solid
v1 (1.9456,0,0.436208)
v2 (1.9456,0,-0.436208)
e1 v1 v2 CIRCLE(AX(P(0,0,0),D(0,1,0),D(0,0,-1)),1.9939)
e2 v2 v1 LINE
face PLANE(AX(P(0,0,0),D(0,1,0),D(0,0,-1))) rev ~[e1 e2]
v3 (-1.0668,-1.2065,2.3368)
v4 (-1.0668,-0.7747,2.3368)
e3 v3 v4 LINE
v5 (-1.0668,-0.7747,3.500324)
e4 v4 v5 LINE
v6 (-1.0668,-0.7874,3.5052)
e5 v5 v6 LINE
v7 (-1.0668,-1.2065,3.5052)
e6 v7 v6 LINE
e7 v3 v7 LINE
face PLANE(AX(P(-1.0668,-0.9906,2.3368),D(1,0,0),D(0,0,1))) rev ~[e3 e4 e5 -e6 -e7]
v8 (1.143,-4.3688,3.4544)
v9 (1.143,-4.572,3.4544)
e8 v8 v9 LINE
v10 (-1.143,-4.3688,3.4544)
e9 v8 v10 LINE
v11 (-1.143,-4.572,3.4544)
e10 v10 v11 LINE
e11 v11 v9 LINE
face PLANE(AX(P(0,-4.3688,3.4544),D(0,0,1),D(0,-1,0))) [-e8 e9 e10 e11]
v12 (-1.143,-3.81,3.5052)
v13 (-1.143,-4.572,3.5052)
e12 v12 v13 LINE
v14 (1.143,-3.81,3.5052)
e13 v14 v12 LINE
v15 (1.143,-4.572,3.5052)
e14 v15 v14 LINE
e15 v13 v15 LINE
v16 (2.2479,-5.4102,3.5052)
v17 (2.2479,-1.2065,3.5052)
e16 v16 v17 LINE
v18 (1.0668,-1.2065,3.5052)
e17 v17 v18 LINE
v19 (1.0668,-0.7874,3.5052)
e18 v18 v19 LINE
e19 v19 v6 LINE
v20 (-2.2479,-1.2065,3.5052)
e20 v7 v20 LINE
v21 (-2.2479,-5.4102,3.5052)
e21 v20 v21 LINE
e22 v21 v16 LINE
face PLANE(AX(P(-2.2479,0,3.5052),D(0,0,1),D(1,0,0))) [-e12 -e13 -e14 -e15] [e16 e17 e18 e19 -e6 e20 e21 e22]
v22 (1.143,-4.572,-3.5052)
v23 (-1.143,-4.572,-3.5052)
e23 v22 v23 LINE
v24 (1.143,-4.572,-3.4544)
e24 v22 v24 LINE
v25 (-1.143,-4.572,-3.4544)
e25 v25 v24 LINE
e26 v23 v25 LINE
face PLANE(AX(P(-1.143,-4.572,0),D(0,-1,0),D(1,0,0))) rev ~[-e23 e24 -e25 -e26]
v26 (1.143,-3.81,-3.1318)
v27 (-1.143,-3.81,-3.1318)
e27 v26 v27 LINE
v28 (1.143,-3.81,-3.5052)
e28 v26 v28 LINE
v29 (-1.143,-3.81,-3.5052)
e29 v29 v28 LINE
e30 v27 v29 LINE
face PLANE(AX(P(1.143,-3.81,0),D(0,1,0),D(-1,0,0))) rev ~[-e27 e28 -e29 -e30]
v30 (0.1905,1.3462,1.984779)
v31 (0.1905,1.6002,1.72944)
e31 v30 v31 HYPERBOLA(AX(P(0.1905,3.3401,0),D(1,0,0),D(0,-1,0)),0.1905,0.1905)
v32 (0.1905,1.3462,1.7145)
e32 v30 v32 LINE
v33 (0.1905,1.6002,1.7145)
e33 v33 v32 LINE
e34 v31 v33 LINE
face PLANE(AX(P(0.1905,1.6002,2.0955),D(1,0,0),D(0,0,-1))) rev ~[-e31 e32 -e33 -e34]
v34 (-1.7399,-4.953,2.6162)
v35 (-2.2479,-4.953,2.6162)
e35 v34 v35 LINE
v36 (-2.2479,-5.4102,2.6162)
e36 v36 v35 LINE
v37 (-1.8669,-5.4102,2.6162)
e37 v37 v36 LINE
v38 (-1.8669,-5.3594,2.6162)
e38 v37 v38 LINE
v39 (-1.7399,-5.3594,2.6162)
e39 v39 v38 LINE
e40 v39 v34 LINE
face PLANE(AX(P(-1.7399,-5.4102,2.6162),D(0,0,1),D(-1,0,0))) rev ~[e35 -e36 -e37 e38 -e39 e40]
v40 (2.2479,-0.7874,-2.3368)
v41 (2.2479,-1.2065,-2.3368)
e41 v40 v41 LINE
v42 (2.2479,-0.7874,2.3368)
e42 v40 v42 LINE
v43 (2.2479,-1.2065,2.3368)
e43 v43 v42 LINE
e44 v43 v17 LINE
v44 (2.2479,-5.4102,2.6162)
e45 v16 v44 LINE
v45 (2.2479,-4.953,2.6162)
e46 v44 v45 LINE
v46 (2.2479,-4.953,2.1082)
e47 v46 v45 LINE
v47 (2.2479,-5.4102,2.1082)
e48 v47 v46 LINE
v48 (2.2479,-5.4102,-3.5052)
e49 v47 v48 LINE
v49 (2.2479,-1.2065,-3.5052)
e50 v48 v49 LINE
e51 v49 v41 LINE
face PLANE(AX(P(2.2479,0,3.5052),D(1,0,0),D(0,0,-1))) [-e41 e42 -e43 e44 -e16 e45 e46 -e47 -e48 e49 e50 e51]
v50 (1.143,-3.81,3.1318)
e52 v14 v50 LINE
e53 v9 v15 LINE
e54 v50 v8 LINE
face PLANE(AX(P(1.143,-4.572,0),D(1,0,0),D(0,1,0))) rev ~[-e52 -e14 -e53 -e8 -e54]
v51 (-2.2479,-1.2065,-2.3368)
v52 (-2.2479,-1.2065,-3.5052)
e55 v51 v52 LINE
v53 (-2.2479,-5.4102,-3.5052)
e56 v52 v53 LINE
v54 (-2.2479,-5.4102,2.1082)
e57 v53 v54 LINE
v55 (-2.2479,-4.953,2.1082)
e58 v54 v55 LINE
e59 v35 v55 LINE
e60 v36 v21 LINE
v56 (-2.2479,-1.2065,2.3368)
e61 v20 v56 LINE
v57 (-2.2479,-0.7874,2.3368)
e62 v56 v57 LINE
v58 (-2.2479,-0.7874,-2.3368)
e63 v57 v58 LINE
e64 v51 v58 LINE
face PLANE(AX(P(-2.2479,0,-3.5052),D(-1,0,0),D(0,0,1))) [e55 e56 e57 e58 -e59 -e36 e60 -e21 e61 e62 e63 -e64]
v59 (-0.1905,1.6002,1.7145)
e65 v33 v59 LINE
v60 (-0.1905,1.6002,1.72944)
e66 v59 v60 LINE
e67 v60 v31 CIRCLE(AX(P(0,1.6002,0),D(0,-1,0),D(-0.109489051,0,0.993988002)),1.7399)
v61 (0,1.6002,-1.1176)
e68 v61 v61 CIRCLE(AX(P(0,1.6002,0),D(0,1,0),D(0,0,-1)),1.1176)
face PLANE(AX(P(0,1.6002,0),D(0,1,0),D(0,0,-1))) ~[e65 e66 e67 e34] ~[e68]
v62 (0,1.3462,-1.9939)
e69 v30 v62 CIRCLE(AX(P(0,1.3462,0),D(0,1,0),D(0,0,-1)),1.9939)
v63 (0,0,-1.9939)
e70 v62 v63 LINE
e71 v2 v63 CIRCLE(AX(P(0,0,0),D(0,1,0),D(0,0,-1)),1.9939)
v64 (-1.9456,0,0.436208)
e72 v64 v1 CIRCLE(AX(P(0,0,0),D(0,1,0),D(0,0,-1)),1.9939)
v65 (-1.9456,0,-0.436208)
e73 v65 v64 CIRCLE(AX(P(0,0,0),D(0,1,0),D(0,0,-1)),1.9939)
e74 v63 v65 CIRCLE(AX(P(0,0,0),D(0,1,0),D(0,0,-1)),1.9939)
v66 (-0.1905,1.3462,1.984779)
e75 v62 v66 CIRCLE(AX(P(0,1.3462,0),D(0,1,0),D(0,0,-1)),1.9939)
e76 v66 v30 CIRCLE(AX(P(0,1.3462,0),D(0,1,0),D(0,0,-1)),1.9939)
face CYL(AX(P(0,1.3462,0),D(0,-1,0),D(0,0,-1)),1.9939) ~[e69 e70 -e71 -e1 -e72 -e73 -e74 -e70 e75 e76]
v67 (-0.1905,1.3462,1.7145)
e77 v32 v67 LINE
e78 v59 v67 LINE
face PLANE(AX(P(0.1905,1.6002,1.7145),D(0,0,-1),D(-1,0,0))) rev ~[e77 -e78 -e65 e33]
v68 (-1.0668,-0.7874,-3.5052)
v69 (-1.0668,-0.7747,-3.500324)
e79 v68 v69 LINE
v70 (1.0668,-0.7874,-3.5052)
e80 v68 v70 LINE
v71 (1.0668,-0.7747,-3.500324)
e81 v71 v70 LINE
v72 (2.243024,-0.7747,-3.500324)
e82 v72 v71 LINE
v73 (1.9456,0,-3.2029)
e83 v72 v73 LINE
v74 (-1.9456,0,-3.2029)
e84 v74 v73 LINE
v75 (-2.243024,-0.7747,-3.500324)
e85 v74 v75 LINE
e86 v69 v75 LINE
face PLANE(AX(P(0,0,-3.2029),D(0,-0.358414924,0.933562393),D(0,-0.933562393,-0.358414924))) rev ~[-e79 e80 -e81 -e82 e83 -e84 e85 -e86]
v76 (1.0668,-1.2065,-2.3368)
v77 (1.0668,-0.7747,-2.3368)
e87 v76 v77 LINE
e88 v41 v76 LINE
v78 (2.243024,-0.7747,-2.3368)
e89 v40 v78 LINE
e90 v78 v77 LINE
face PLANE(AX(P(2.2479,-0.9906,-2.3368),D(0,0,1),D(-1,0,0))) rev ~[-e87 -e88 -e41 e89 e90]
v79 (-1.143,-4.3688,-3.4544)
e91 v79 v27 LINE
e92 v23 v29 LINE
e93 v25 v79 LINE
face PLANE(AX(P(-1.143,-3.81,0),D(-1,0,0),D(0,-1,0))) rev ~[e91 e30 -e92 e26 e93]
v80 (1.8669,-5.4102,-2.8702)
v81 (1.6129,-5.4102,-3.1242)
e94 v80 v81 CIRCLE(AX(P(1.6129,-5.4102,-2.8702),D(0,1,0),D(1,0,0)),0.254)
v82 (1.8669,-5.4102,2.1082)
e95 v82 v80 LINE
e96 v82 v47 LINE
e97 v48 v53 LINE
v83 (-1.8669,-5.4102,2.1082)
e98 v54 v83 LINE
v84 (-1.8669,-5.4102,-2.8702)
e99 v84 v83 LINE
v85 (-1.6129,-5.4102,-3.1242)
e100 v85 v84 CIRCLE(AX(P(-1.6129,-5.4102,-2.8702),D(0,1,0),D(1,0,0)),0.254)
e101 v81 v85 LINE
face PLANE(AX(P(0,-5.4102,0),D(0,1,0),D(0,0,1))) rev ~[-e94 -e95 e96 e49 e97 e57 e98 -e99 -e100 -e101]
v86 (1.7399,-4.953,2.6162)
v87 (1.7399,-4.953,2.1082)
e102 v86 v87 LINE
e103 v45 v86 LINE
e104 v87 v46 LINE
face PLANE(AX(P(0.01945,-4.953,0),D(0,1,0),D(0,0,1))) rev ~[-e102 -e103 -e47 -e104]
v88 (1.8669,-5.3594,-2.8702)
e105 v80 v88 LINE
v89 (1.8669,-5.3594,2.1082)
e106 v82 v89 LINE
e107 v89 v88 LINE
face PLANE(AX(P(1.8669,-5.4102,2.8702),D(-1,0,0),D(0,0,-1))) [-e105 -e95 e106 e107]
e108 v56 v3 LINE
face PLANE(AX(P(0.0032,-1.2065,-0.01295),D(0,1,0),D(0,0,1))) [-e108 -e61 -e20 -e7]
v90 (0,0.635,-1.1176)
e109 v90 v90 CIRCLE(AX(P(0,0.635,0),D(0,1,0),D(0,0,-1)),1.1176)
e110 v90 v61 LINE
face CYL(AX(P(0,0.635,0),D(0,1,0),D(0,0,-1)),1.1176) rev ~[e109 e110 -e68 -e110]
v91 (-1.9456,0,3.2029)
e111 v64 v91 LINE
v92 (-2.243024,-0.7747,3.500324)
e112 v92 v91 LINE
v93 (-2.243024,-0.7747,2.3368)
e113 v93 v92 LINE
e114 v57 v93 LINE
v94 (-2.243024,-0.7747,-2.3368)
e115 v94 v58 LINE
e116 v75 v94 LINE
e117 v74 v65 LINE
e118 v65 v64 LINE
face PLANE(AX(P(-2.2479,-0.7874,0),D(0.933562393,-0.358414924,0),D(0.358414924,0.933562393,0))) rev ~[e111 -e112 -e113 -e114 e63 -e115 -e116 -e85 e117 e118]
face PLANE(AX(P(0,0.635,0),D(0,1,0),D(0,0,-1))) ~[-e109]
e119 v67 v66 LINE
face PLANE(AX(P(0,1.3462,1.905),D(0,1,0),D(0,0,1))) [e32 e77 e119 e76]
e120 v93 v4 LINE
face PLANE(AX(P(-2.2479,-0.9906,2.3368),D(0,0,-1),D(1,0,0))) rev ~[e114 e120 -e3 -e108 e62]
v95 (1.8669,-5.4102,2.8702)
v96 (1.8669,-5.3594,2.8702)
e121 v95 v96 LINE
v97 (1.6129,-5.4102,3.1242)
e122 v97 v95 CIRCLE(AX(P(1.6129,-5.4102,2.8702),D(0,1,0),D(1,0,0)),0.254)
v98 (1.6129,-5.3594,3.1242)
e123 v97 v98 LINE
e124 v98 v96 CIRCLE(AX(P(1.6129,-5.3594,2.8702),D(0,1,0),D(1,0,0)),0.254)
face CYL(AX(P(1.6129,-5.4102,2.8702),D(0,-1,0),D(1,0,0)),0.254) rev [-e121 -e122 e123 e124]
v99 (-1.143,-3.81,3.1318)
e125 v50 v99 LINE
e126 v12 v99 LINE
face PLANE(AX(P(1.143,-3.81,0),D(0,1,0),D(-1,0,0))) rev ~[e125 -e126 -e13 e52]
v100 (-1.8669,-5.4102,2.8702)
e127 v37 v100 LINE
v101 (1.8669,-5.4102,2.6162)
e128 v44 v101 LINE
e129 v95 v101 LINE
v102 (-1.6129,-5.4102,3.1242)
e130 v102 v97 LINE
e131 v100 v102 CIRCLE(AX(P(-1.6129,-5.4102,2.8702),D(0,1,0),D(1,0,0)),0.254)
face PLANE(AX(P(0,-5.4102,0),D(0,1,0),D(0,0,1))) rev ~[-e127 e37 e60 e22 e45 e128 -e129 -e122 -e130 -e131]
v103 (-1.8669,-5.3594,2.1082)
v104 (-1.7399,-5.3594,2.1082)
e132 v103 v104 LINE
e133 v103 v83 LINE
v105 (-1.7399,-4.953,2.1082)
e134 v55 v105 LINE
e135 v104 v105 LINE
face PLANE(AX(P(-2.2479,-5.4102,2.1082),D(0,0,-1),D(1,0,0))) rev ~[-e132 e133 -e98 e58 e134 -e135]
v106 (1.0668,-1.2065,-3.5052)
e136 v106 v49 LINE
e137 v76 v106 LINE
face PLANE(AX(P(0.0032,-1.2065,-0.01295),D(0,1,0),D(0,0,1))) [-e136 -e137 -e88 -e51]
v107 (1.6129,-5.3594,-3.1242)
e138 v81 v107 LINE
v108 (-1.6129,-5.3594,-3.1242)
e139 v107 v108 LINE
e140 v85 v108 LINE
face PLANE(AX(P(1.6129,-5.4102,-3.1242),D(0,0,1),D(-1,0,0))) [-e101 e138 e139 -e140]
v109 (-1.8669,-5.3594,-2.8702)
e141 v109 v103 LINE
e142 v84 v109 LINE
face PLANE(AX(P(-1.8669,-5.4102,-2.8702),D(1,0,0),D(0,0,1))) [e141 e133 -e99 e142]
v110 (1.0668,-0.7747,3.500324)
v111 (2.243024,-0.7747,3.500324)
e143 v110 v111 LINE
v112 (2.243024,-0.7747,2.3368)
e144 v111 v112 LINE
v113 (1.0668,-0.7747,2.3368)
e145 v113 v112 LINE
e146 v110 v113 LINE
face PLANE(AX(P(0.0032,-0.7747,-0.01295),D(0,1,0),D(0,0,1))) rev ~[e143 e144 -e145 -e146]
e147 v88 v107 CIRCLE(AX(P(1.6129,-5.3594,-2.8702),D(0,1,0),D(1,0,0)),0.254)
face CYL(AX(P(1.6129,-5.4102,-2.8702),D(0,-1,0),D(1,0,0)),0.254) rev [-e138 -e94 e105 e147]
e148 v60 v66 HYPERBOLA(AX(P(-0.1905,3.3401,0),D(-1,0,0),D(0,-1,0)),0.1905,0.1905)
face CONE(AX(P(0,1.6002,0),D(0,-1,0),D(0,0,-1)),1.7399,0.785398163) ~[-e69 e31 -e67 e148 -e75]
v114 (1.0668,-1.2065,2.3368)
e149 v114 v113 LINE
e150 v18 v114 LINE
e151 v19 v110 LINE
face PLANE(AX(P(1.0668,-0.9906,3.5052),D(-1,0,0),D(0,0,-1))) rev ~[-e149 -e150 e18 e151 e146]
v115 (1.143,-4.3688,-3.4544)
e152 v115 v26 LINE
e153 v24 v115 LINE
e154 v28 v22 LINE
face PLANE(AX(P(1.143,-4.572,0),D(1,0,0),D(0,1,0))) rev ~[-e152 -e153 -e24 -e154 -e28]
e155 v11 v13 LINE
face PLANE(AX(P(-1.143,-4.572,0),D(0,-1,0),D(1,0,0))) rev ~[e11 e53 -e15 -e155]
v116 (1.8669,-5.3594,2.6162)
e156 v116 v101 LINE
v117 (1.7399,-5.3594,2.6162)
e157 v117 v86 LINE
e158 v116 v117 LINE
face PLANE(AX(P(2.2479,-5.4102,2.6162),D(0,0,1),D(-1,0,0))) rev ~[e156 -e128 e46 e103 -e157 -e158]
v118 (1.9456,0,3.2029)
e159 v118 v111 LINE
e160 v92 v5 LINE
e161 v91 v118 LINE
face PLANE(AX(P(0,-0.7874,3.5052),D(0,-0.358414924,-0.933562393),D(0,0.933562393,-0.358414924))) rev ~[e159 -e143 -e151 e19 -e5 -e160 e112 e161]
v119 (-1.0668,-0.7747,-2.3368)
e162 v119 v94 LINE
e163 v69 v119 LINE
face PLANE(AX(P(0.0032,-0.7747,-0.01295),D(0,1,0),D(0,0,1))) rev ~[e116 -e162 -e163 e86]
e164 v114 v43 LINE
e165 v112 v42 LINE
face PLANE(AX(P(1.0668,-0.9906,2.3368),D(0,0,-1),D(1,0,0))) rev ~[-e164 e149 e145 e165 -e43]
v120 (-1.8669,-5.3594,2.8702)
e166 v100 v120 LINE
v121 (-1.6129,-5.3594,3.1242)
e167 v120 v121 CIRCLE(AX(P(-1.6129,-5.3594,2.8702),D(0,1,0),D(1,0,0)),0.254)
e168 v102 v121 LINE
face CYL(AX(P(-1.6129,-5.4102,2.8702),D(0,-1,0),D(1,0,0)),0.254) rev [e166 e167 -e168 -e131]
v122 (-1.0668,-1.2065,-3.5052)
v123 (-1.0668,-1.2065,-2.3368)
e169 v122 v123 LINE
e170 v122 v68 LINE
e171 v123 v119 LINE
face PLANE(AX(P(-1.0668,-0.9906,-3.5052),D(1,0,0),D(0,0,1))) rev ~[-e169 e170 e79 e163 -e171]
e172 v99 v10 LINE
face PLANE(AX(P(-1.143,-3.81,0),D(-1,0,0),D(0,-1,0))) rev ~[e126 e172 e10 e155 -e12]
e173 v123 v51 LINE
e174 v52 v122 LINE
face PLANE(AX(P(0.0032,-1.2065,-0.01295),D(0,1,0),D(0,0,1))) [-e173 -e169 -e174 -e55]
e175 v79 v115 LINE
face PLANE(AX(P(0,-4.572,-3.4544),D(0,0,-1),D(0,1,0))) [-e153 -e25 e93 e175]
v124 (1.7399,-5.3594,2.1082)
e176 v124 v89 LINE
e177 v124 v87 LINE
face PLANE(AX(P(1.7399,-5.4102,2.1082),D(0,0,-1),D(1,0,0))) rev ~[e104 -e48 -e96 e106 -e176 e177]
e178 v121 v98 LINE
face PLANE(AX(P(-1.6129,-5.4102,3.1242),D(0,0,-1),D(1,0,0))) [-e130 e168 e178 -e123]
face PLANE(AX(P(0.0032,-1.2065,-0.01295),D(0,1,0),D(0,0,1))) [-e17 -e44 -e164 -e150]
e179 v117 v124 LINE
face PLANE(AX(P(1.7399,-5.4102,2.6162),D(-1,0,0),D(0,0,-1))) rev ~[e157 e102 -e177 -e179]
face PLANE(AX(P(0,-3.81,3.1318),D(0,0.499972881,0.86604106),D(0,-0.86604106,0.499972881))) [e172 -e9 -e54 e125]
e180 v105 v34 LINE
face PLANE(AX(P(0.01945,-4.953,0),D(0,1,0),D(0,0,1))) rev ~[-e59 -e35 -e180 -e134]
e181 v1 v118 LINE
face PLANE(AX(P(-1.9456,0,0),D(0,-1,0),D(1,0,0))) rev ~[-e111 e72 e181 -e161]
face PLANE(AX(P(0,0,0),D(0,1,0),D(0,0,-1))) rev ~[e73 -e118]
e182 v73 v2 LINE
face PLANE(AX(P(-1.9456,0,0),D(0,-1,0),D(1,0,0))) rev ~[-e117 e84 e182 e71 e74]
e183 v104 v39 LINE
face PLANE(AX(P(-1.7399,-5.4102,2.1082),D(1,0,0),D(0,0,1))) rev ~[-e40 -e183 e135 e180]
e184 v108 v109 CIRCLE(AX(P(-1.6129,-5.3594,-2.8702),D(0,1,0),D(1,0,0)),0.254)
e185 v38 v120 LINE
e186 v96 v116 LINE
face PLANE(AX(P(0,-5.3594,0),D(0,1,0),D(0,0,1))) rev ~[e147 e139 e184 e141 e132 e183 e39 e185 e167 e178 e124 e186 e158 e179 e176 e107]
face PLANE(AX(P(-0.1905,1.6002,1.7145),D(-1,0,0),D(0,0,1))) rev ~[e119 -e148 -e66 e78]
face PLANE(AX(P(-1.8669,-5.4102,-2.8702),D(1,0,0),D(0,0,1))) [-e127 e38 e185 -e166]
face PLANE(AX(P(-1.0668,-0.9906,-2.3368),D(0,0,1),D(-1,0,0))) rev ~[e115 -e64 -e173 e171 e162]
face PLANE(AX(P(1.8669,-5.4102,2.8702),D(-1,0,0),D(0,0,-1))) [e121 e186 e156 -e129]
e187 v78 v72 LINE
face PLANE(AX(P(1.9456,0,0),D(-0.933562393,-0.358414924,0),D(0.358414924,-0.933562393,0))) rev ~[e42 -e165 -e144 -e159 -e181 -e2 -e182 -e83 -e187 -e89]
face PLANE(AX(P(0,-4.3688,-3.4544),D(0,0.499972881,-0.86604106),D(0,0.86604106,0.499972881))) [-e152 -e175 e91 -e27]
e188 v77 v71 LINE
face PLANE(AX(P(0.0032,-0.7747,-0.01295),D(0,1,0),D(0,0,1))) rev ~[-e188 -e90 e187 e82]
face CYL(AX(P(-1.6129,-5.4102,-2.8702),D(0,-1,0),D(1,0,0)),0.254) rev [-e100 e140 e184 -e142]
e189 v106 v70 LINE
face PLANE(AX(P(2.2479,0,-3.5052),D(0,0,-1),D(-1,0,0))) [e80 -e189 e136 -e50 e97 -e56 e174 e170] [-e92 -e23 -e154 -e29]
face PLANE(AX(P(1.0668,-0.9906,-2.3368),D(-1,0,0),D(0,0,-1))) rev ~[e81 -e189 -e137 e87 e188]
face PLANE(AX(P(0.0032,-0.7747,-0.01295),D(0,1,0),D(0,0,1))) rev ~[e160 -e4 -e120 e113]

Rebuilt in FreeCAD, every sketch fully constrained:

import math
import FreeCAD as App
import Part
import Sketcher
from FreeCAD import Vector
Q = App.Units.Quantity

doc = App.newDocument("Part")
params = doc.addObject("Spreadsheet::Sheet", "Params")
for row, (alias, value) in enumerate([
    ("sketch1_width", "0.177 in"),
    ("sketch1_height", "0.276 in"),
    ("pad1_length", "0.213 in"),
    ("sketch2_width", "0.177 in"),
    ("sketch2_height", "0.036 in"),
    ("sketch3_width", "0.036 in"),
    ("sketch3_height", "0.276 in"),
    ("sketch4_width", "0.084 in"),
    ("sketch4_height", "0.184 in"),
    ("sketch4_height2", "0.046 in"),
    ("pocket3_length", "0.0085 in"),
    ("pocket3_length2", "0.0085 in"),
    ("sketch5_width", "0.025 in"),
    ("sketch5_width2", "0.053 in"),
    ("sketch5_width3", "0.038 in"),
    ("sketch5_height", "0.044 in"),
    ("revolution_angle", "360 deg"),
    ("sketch6_width", "0.02 in"),
    ("sketch6_width2", "0.177 in"),
    ("sketch6_height", "0.035 in"),
    ("sketch6_height2", "0.221 in"),
    ("pocket4_length", "0.018 in"),
    ("sketch7_radius", "0.01 in"),
    ("sketch7_width", "0.127 in"),
    ("sketch7_height", "0.226 in"),
    ("pocket5_length", "0.002 in"),
    ("sketch8_width", "0.015 in"),
    ("pocket6_length", "0.01 in"),
    ("sketch9_width", "0.09 in"),
    ("sketch9_height", "0.03 in"),
    ("sketch10_width", "0.008 in"),
    ("sketch10_height", "0.272 in"),
    ("pad2_length", "0.045 in"),
    ("pad2_length2", "0.045 in"),
], start=1):
    params.set(f"A{row}", alias)
    params.set(f"B{row}", "=" + value)
    params.setAlias(f"B{row}", alias)

body = doc.addObject("PartDesign::Body", "Body")

sketch1 = body.newObject("Sketcher::SketchObject", "Sketch")
sketch1.AttachmentSupport = (doc.getObject("XZ_Plane"), [""])
sketch1.MapMode = "FlatFace"
sketch1.addGeometry([
    Part.LineSegment(Vector(2.2, 3.5, 0), Vector(-2.2, 3.5, 0)),
    Part.LineSegment(Vector(-2.2, 3.5, 0), Vector(-2.2, -3.5, 0)),
    Part.LineSegment(Vector(-2.2, -3.5, 0), Vector(2.2, -3.5, 0)),
    Part.LineSegment(Vector(2.2, -3.5, 0), Vector(2.2, 3.5, 0)),
], False)
sketch1.addConstraint([
    Sketcher.Constraint("Coincident", 0, 2, 1, 1),
    Sketcher.Constraint("Coincident", 1, 2, 2, 1),
    Sketcher.Constraint("Coincident", 2, 2, 3, 1),
    Sketcher.Constraint("Coincident", 3, 2, 0, 1),
    Sketcher.Constraint("Horizontal", 0),
    Sketcher.Constraint("Vertical", 1),
    Sketcher.Constraint("Horizontal", 2),
    Sketcher.Constraint("Vertical", 3),
    Sketcher.Constraint("Symmetric", 0, 2, 2, 2, -1, 1),
    Sketcher.Constraint("DistanceX", 0, 2, 0, 1, Q("0.177 in")),
    Sketcher.Constraint("DistanceY", 1, 2, 1, 1, Q("0.276 in")),
])
sketch1.setExpression("Constraints[9]", "Params.sketch1_width")
sketch1.setExpression("Constraints[10]", "Params.sketch1_height")
pad1 = body.newObject("PartDesign::Pad", "Pad")
pad1.Profile = sketch1
pad1.setExpression("Length", "Params.pad1_length")

sketch2 = body.newObject("Sketcher::SketchObject", "Sketch001")
sketch2.AttachmentSupport = (doc.getObject("XY_Plane"), [""])
sketch2.MapMode = "FlatFace"
sketch2.addGeometry([
    Part.LineSegment(Vector(-2.2, 0.1, 0), Vector(-2.2, -0.8, 0)),
    Part.LineSegment(Vector(-2.2, -0.8, 0), Vector(-1.9, 0, 0)),
    Part.LineSegment(Vector(-1.9, 0, 0), Vector(1.9, 0, 0)),
    Part.LineSegment(Vector(1.9, 0, 0), Vector(2.2, -0.8, 0)),
    Part.LineSegment(Vector(2.2, -0.8, 0), Vector(2.2, 0.1, 0)),
    Part.LineSegment(Vector(2.2, 0.1, 0), Vector(-2.2, 0.1, 0)),
], False)
sketch2.addConstraint([
    Sketcher.Constraint("Coincident", 0, 2, 1, 1),
    Sketcher.Constraint("Coincident", 1, 2, 2, 1),
    Sketcher.Constraint("Coincident", 2, 2, 3, 1),
    Sketcher.Constraint("Coincident", 3, 2, 4, 1),
    Sketcher.Constraint("Coincident", 4, 2, 5, 1),
    Sketcher.Constraint("Coincident", 5, 2, 0, 1),
    Sketcher.Constraint("Vertical", 0),
    Sketcher.Constraint("Horizontal", 2),
    Sketcher.Constraint("Vertical", 4),
    Sketcher.Constraint("Horizontal", 5),
    Sketcher.Constraint("Symmetric", 1, 2, 2, 2, -1, 1),
    Sketcher.Constraint("Symmetric", 0, 2, 3, 2, -2),
    Sketcher.Constraint("DistanceX", 5, 2, 5, 1, Q("0.177 in")),
    Sketcher.Constraint("DistanceY", 0, 2, 0, 1, Q("0.036 in")),
    Sketcher.Constraint("DistanceX", 2, 1, 2, 2, Q("0.1532 in")),
    Sketcher.Constraint("DistanceY", 0, 2, -1, 1, Q("0.031 in")),
])
sketch2.setExpression("Constraints[12]", "Params.sketch2_width")
sketch2.setExpression("Constraints[13]", "Params.sketch2_height")
pocket1 = body.newObject("PartDesign::Pocket", "Pocket")
pocket1.Profile = sketch2
pocket1.Type = "ThroughAll"
pocket1.Midplane = True

sketch3 = body.newObject("Sketcher::SketchObject", "Sketch002")
sketch3.AttachmentSupport = (doc.getObject("YZ_Plane"), [""])
sketch3.MapMode = "FlatFace"
sketch3.addGeometry([
    Part.LineSegment(Vector(0.1, 3.5, 0), Vector(-0.8, 3.5, 0)),
    Part.LineSegment(Vector(-0.8, 3.5, 0), Vector(0, 3.2, 0)),
    Part.LineSegment(Vector(0, 3.2, 0), Vector(0, -3.2, 0)),
    Part.LineSegment(Vector(0, -3.2, 0), Vector(-0.8, -3.5, 0)),
    Part.LineSegment(Vector(-0.8, -3.5, 0), Vector(0.1, -3.5, 0)),
    Part.LineSegment(Vector(0.1, -3.5, 0), Vector(0.1, 3.5, 0)),
], False)
sketch3.addConstraint([
    Sketcher.Constraint("Coincident", 0, 2, 1, 1),
    Sketcher.Constraint("Coincident", 1, 2, 2, 1),
    Sketcher.Constraint("Coincident", 2, 2, 3, 1),
    Sketcher.Constraint("Coincident", 3, 2, 4, 1),
    Sketcher.Constraint("Coincident", 4, 2, 5, 1),
    Sketcher.Constraint("Coincident", 5, 2, 0, 1),
    Sketcher.Constraint("Horizontal", 0),
    Sketcher.Constraint("Vertical", 2),
    Sketcher.Constraint("Horizontal", 4),
    Sketcher.Constraint("Vertical", 5),
    Sketcher.Constraint("Symmetric", 1, 2, 2, 2, -1, 1),
    Sketcher.Constraint("Symmetric", 0, 2, 3, 2, -1),
    Sketcher.Constraint("DistanceX", 0, 2, 0, 1, Q("0.036 in")),
    Sketcher.Constraint("DistanceY", 5, 1, 5, 2, Q("0.276 in")),
    Sketcher.Constraint("DistanceY", 2, 2, 2, 1, Q("0.2522 in")),
    Sketcher.Constraint("DistanceX", 0, 2, -1, 1, Q("0.031 in")),
])
sketch3.setExpression("Constraints[12]", "Params.sketch3_width")
sketch3.setExpression("Constraints[13]", "Params.sketch3_height")
pocket2 = body.newObject("PartDesign::Pocket", "Pocket001")
pocket2.Profile = sketch3
pocket2.Type = "ThroughAll"
pocket2.Midplane = True

sketch4 = body.newObject("Sketcher::SketchObject", "Sketch003")
sketch4.AttachmentSupport = (doc.getObject("XZ_Plane"), [""])
sketch4.MapMode = "FlatFace"
sketch4.AttachmentOffset = App.Placement(Vector(0, 0, 0.039 * 25.4), App.Rotation())
sketch4.addGeometry([
    Part.LineSegment(Vector(-2.5, 3.7, 0), Vector(-2.5, -3.8, 0)),
    Part.LineSegment(Vector(-2.5, -3.8, 0), Vector(2.5, -3.8, 0)),
    Part.LineSegment(Vector(2.5, -3.8, 0), Vector(2.5, 3.7, 0)),
    Part.LineSegment(Vector(2.5, 3.7, 0), Vector(-2.5, 3.7, 0)),
    Part.LineSegment(Vector(-1.1, -2.3, 0), Vector(-2.2, -2.3, 0)),
    Part.LineSegment(Vector(-2.2, -2.3, 0), Vector(-2.2, 2.3, 0)),
    Part.LineSegment(Vector(-2.2, 2.3, 0), Vector(-1.1, 2.3, 0)),
    Part.LineSegment(Vector(-1.1, 2.3, 0), Vector(-1.1, 3.5, 0)),
    Part.LineSegment(Vector(-1.1, 3.5, 0), Vector(1.1, 3.5, 0)),
    Part.LineSegment(Vector(1.1, 3.5, 0), Vector(1.1, 2.3, 0)),
    Part.LineSegment(Vector(1.1, 2.3, 0), Vector(2.2, 2.3, 0)),
    Part.LineSegment(Vector(2.2, 2.3, 0), Vector(2.2, -2.3, 0)),
    Part.LineSegment(Vector(2.2, -2.3, 0), Vector(1.1, -2.3, 0)),
    Part.LineSegment(Vector(1.1, -2.3, 0), Vector(1.1, -3.5, 0)),
    Part.LineSegment(Vector(1.1, -3.5, 0), Vector(-1.1, -3.5, 0)),
    Part.LineSegment(Vector(-1.1, -3.5, 0), Vector(-1.1, -2.3, 0)),
], False)
sketch4.addConstraint([
    Sketcher.Constraint("Coincident", 0, 2, 1, 1),
    Sketcher.Constraint("Coincident", 1, 2, 2, 1),
    Sketcher.Constraint("Coincident", 2, 2, 3, 1),
    Sketcher.Constraint("Coincident", 3, 2, 0, 1),
    Sketcher.Constraint("Coincident", 4, 2, 5, 1),
    Sketcher.Constraint("Coincident", 5, 2, 6, 1),
    Sketcher.Constraint("Coincident", 6, 2, 7, 1),
    Sketcher.Constraint("Coincident", 7, 2, 8, 1),
    Sketcher.Constraint("Coincident", 8, 2, 9, 1),
    Sketcher.Constraint("Coincident", 9, 2, 10, 1),
    Sketcher.Constraint("Coincident", 10, 2, 11, 1),
    Sketcher.Constraint("Coincident", 11, 2, 12, 1),
    Sketcher.Constraint("Coincident", 12, 2, 13, 1),
    Sketcher.Constraint("Coincident", 13, 2, 14, 1),
    Sketcher.Constraint("Coincident", 14, 2, 15, 1),
    Sketcher.Constraint("Coincident", 15, 2, 4, 1),
    Sketcher.Constraint("Vertical", 0),
    Sketcher.Constraint("Horizontal", 1),
    Sketcher.Constraint("Vertical", 2),
    Sketcher.Constraint("Horizontal", 3),
    Sketcher.Constraint("Horizontal", 4),
    Sketcher.Constraint("Vertical", 5),
    Sketcher.Constraint("Horizontal", 6),
    Sketcher.Constraint("Vertical", 7),
    Sketcher.Constraint("Horizontal", 8),
    Sketcher.Constraint("Vertical", 9),
    Sketcher.Constraint("Horizontal", 10),
    Sketcher.Constraint("Vertical", 11),
    Sketcher.Constraint("Horizontal", 12),
    Sketcher.Constraint("Vertical", 13),
    Sketcher.Constraint("Horizontal", 14),
    Sketcher.Constraint("Vertical", 15),
    Sketcher.Constraint("Symmetric", 4, 2, 10, 2, -1, 1),
    Sketcher.Constraint("Symmetric", 6, 2, 12, 2, -1, 1),
    Sketcher.Constraint("Symmetric", 8, 2, 14, 2, -1, 1),
    Sketcher.Constraint("Symmetric", 6, 2, 9, 2, -2),
    Sketcher.Constraint("DistanceX", 8, 1, 8, 2, Q("0.084 in")),
    Sketcher.Constraint("DistanceY", 5, 1, 5, 2, Q("0.184 in")),
    Sketcher.Constraint("DistanceY", 7, 1, 7, 2, Q("0.046 in")),
    Sketcher.Constraint("DistanceX", 4, 2, 4, 1, Q("0.0465 in")),
    Sketcher.Constraint("DistanceY", 0, 2, 0, 1, Q("0.2947 in")),
    Sketcher.Constraint("DistanceX", 1, 1, 1, 2, Q("5.0576 mm")),
    Sketcher.Constraint("DistanceX", 0, 2, -1, 1, Q("2.5256 mm")),
    Sketcher.Constraint("DistanceY", 0, 2, -1, 1, Q("3.7556 mm")),
])
sketch4.setExpression("Constraints[36]", "Params.sketch4_width")
sketch4.setExpression("Constraints[37]", "Params.sketch4_height")
sketch4.setExpression("Constraints[38]", "Params.sketch4_height2")
pocket3 = body.newObject("PartDesign::Pocket", "Pocket002")
pocket3.Profile = sketch4
pocket3.Type = "TwoLengths"
pocket3.setExpression("Length", "Params.pocket3_length")
pocket3.setExpression("Length2", "Params.pocket3_length2")

sketch5 = body.newObject("Sketcher::SketchObject", "Sketch004")
sketch5.AttachmentSupport = (doc.getObject("YZ_Plane"), [""])
sketch5.MapMode = "FlatFace"
sketch5.addGeometry([
    Part.LineSegment(Vector(0.64, -1.12, 0), Vector(0.64, 0, 0)),
    Part.LineSegment(Vector(0.64, 0, 0), Vector(0, 0, 0)),
    Part.LineSegment(Vector(0, 0, 0), Vector(0, -1.99, 0)),
    Part.LineSegment(Vector(0, -1.99, 0), Vector(1.35, -1.99, 0)),
    Part.LineSegment(Vector(1.35, -1.99, 0), Vector(1.6, -1.74, 0)),
    Part.LineSegment(Vector(1.6, -1.74, 0), Vector(1.6, -1.12, 0)),
    Part.LineSegment(Vector(1.6, -1.12, 0), Vector(0.64, -1.12, 0)),
], False)
sketch5.addConstraint([
    Sketcher.Constraint("Coincident", 0, 2, 1, 1),
    Sketcher.Constraint("Coincident", 1, 2, 2, 1),
    Sketcher.Constraint("Coincident", 2, 2, 3, 1),
    Sketcher.Constraint("Coincident", 3, 2, 4, 1),
    Sketcher.Constraint("Coincident", 4, 2, 5, 1),
    Sketcher.Constraint("Coincident", 5, 2, 6, 1),
    Sketcher.Constraint("Coincident", 6, 2, 0, 1),
    Sketcher.Constraint("Vertical", 0),
    Sketcher.Constraint("Horizontal", 1),
    Sketcher.Constraint("Vertical", 2),
    Sketcher.Constraint("Horizontal", 3),
    Sketcher.Constraint("Vertical", 5),
    Sketcher.Constraint("Horizontal", 6),
    Sketcher.Constraint("Coincident", 1, 2, -1, 1),
    Sketcher.Constraint("Angle", 4, Q("45 deg")),
    Sketcher.Constraint("DistanceX", 1, 2, 1, 1, Q("0.025 in")),
    Sketcher.Constraint("DistanceX", 3, 1, 3, 2, Q("0.053 in")),
    Sketcher.Constraint("DistanceX", 6, 2, 6, 1, Q("0.038 in")),
    Sketcher.Constraint("DistanceY", 0, 1, 0, 2, Q("0.044 in")),
    Sketcher.Constraint("DistanceY", 2, 2, 2, 1, Q("0.0785 in")),
])
sketch5.setExpression("Constraints[15]", "Params.sketch5_width")
sketch5.setExpression("Constraints[16]", "Params.sketch5_width2")
sketch5.setExpression("Constraints[17]", "Params.sketch5_width3")
sketch5.setExpression("Constraints[18]", "Params.sketch5_height")
revolution = body.newObject("PartDesign::Revolution", "Revolution")
revolution.Profile = sketch5
revolution.ReferenceAxis = (sketch5, ["H_Axis"])
revolution.setExpression("Angle", "Params.revolution_angle")

sketch6 = body.newObject("Sketcher::SketchObject", "Sketch005")
sketch6.AttachmentSupport = (doc.getObject("XZ_Plane"), [""])
sketch6.MapMode = "FlatFace"
sketch6.AttachmentOffset = App.Placement(Vector(0, 0, 0.213 * 25.4), App.Rotation())
sketch6.addGeometry([
    Part.LineSegment(Vector(-2.6, 3.6, 0), Vector(-2.6, -3.6, 0)),
    Part.LineSegment(Vector(-2.6, -3.6, 0), Vector(2.7, -3.6, 0)),
    Part.LineSegment(Vector(2.7, -3.6, 0), Vector(2.7, 3.6, 0)),
    Part.LineSegment(Vector(2.7, 3.6, 0), Vector(-2.6, 3.6, 0)),
    Part.LineSegment(Vector(-2.2, 2.6, 0), Vector(-2.2, 3.5, 0)),
    Part.LineSegment(Vector(-2.2, 3.5, 0), Vector(2.2, 3.5, 0)),
    Part.LineSegment(Vector(2.2, 3.5, 0), Vector(2.2, 2.6, 0)),
    Part.LineSegment(Vector(2.2, 2.6, 0), Vector(1.7, 2.6, 0)),
    Part.LineSegment(Vector(1.7, 2.6, 0), Vector(1.7, 2.1, 0)),
    Part.LineSegment(Vector(1.7, 2.1, 0), Vector(2.2, 2.1, 0)),
    Part.LineSegment(Vector(2.2, 2.1, 0), Vector(2.2, -3.5, 0)),
    Part.LineSegment(Vector(2.2, -3.5, 0), Vector(-2.2, -3.5, 0)),
    Part.LineSegment(Vector(-2.2, -3.5, 0), Vector(-2.2, 2.1, 0)),
    Part.LineSegment(Vector(-2.2, 2.1, 0), Vector(-1.7, 2.1, 0)),
    Part.LineSegment(Vector(-1.7, 2.1, 0), Vector(-1.7, 2.6, 0)),
    Part.LineSegment(Vector(-1.7, 2.6, 0), Vector(-2.2, 2.6, 0)),
], False)
sketch6.addConstraint([
    Sketcher.Constraint("Coincident", 0, 2, 1, 1),
    Sketcher.Constraint("Coincident", 1, 2, 2, 1),
    Sketcher.Constraint("Coincident", 2, 2, 3, 1),
    Sketcher.Constraint("Coincident", 3, 2, 0, 1),
    Sketcher.Constraint("Coincident", 4, 2, 5, 1),
    Sketcher.Constraint("Coincident", 5, 2, 6, 1),
    Sketcher.Constraint("Coincident", 6, 2, 7, 1),
    Sketcher.Constraint("Coincident", 7, 2, 8, 1),
    Sketcher.Constraint("Coincident", 8, 2, 9, 1),
    Sketcher.Constraint("Coincident", 9, 2, 10, 1),
    Sketcher.Constraint("Coincident", 10, 2, 11, 1),
    Sketcher.Constraint("Coincident", 11, 2, 12, 1),
    Sketcher.Constraint("Coincident", 12, 2, 13, 1),
    Sketcher.Constraint("Coincident", 13, 2, 14, 1),
    Sketcher.Constraint("Coincident", 14, 2, 15, 1),
    Sketcher.Constraint("Coincident", 15, 2, 4, 1),
    Sketcher.Constraint("Vertical", 0),
    Sketcher.Constraint("Horizontal", 1),
    Sketcher.Constraint("Vertical", 2),
    Sketcher.Constraint("Horizontal", 3),
    Sketcher.Constraint("Vertical", 4),
    Sketcher.Constraint("Horizontal", 5),
    Sketcher.Constraint("Vertical", 6),
    Sketcher.Constraint("Horizontal", 7),
    Sketcher.Constraint("Vertical", 8),
    Sketcher.Constraint("Horizontal", 9),
    Sketcher.Constraint("Vertical", 10),
    Sketcher.Constraint("Horizontal", 11),
    Sketcher.Constraint("Vertical", 12),
    Sketcher.Constraint("Horizontal", 13),
    Sketcher.Constraint("Vertical", 14),
    Sketcher.Constraint("Horizontal", 15),
    Sketcher.Constraint("Symmetric", 4, 2, 10, 2, -1, 1),
    Sketcher.Constraint("Symmetric", 9, 2, 12, 2, -2),
    Sketcher.Constraint("Symmetric", 7, 2, 14, 2, -2),
    Sketcher.Constraint("Vertical", 6, 2, 9, 2),
    Sketcher.Constraint("Equal", 15, 8),
    Sketcher.Constraint("DistanceX", 7, 2, 7, 1, Q("0.02 in")),
    Sketcher.Constraint("DistanceX", 5, 1, 5, 2, Q("0.177 in")),
    Sketcher.Constraint("DistanceY", 4, 1, 4, 2, Q("0.035 in")),
    Sketcher.Constraint("DistanceY", 10, 2, 10, 1, Q("0.221 in")),
    Sketcher.Constraint("DistanceY", 0, 2, 0, 1, Q("0.2857 in")),
    Sketcher.Constraint("DistanceX", 1, 1, 1, 2, Q("5.3097 mm")),
    Sketcher.Constraint("DistanceX", 0, 2, -1, 1, Q("2.6354 mm")),
    Sketcher.Constraint("DistanceY", 0, 2, -1, 1, Q("3.6285 mm")),
])
sketch6.setExpression("Constraints[37]", "Params.sketch6_width")
sketch6.setExpression("Constraints[38]", "Params.sketch6_width2")
sketch6.setExpression("Constraints[39]", "Params.sketch6_height")
sketch6.setExpression("Constraints[40]", "Params.sketch6_height2")
pocket4 = body.newObject("PartDesign::Pocket", "Pocket003")
pocket4.Profile = sketch6
pocket4.setExpression("Length", "Params.pocket4_length")

sketch7 = body.newObject("Sketcher::SketchObject", "Sketch006")
sketch7.AttachmentSupport = (doc.getObject("XZ_Plane"), [""])
sketch7.MapMode = "FlatFace"
sketch7.AttachmentOffset = App.Placement(Vector(0, 0, 0.213 * 25.4), App.Rotation())
sketch7.addGeometry([
    Part.LineSegment(Vector(-1.87, 2.87, 0), Vector(-1.87, -2.87, 0)),
    Part.ArcOfCircle(Part.Circle(Vector(-1.61, -2.87, 0), Vector(0, 0, 1), 0.25), math.radians(180), math.radians(270)),
    Part.LineSegment(Vector(-1.61, -3.12, 0), Vector(1.61, -3.12, 0)),
    Part.ArcOfCircle(Part.Circle(Vector(1.61, -2.87, 0), Vector(0, 0, 1), 0.25), math.radians(-90), math.radians(0)),
    Part.LineSegment(Vector(1.87, -2.87, 0), Vector(1.87, 2.87, 0)),
    Part.ArcOfCircle(Part.Circle(Vector(1.61, 2.87, 0), Vector(0, 0, 1), 0.25), math.radians(0), math.radians(90)),
    Part.LineSegment(Vector(1.61, 3.12, 0), Vector(-1.61, 3.12, 0)),
    Part.ArcOfCircle(Part.Circle(Vector(-1.61, 2.87, 0), Vector(0, 0, 1), 0.25), math.radians(90), math.radians(180)),
], False)
sketch7.addConstraint([
    Sketcher.Constraint("Tangent", 0, 2, 1, 1),
    Sketcher.Constraint("Tangent", 1, 2, 2, 1),
    Sketcher.Constraint("Tangent", 2, 2, 3, 1),
    Sketcher.Constraint("Tangent", 3, 2, 4, 1),
    Sketcher.Constraint("Tangent", 4, 2, 5, 1),
    Sketcher.Constraint("Tangent", 5, 2, 6, 1),
    Sketcher.Constraint("Tangent", 6, 2, 7, 1),
    Sketcher.Constraint("Tangent", 7, 2, 0, 1),
    Sketcher.Constraint("Vertical", 0),
    Sketcher.Constraint("Horizontal", 2),
    Sketcher.Constraint("Vertical", 4),
    Sketcher.Constraint("Horizontal", 6),
    Sketcher.Constraint("Equal", 1, 3),
    Sketcher.Constraint("Equal", 3, 5),
    Sketcher.Constraint("Equal", 5, 7),
    Sketcher.Constraint("Symmetric", 1, 3, 5, 3, -1, 1),
    Sketcher.Constraint("Radius", 1, Q("0.01 in")),
    Sketcher.Constraint("DistanceX", 2, 1, 2, 2, Q("0.127 in")),
    Sketcher.Constraint("DistanceY", 0, 2, 0, 1, Q("0.226 in")),
])
sketch7.setExpression("Constraints[16]", "Params.sketch7_radius")
sketch7.setExpression("Constraints[17]", "Params.sketch7_width")
sketch7.setExpression("Constraints[18]", "Params.sketch7_height")
pocket5 = body.newObject("PartDesign::Pocket", "Pocket004")
pocket5.Profile = sketch7
pocket5.setExpression("Length", "Params.pocket5_length")

sketch8 = body.newObject("Sketcher::SketchObject", "Sketch007")
sketch8.AttachmentSupport = (doc.getObject("XZ_Plane"), [""])
sketch8.MapMode = "FlatFace"
sketch8.AttachmentOffset = App.Placement(Vector(0, 0, -0.063 * 25.4), App.Rotation())
sketch8.addGeometry([
    Part.LineSegment(Vector(-0.19, 2.1, 0), Vector(-0.19, 1.71, 0)),
    Part.LineSegment(Vector(-0.19, 1.71, 0), Vector(0.19, 1.71, 0)),
    Part.LineSegment(Vector(0.19, 1.71, 0), Vector(0.19, 2.1, 0)),
    Part.LineSegment(Vector(0.19, 2.1, 0), Vector(-0.19, 2.1, 0)),
], False)
sketch8.addConstraint([
    Sketcher.Constraint("Coincident", 0, 2, 1, 1),
    Sketcher.Constraint("Coincident", 1, 2, 2, 1),
    Sketcher.Constraint("Coincident", 2, 2, 3, 1),
    Sketcher.Constraint("Coincident", 3, 2, 0, 1),
    Sketcher.Constraint("Vertical", 0),
    Sketcher.Constraint("Horizontal", 1),
    Sketcher.Constraint("Vertical", 2),
    Sketcher.Constraint("Horizontal", 3),
    Sketcher.Constraint("Equal", 3, 0),
    Sketcher.Constraint("DistanceX", 1, 1, 1, 2, Q("0.015 in")),
    Sketcher.Constraint("DistanceX", 0, 2, -1, 1, Q("0.0075 in")),
    Sketcher.Constraint("DistanceY", -1, 1, 0, 2, Q("0.0675 in")),
])
sketch8.setExpression("Constraints[9]", "Params.sketch8_width")
pocket6 = body.newObject("PartDesign::Pocket", "Pocket005")
pocket6.Profile = sketch8
pocket6.setExpression("Length", "Params.pocket6_length")
pocket6.Reversed = True

sketch9 = body.newObject("Sketcher::SketchObject", "Sketch008")
sketch9.AttachmentSupport = (doc.getObject("XY_Plane"), [""])
sketch9.MapMode = "FlatFace"
sketch9.addGeometry([
    Part.LineSegment(Vector(1.1, -3.8, 0), Vector(-1.1, -3.8, 0)),
    Part.LineSegment(Vector(-1.1, -3.8, 0), Vector(-1.1, -4.6, 0)),
    Part.LineSegment(Vector(-1.1, -4.6, 0), Vector(1.1, -4.6, 0)),
    Part.LineSegment(Vector(1.1, -4.6, 0), Vector(1.1, -3.8, 0)),
], False)
sketch9.addConstraint([
    Sketcher.Constraint("Coincident", 0, 2, 1, 1),
    Sketcher.Constraint("Coincident", 1, 2, 2, 1),
    Sketcher.Constraint("Coincident", 2, 2, 3, 1),
    Sketcher.Constraint("Coincident", 3, 2, 0, 1),
    Sketcher.Constraint("Horizontal", 0),
    Sketcher.Constraint("Vertical", 1),
    Sketcher.Constraint("Horizontal", 2),
    Sketcher.Constraint("Vertical", 3),
    Sketcher.Constraint("DistanceX", 0, 2, 0, 1, Q("0.09 in")),
    Sketcher.Constraint("DistanceY", 1, 2, 1, 1, Q("0.03 in")),
    Sketcher.Constraint("DistanceY", 0, 2, -1, 1, Q("0.15 in")),
    Sketcher.Constraint("DistanceX", 0, 2, -1, 1, Q("0.045 in")),
])
sketch9.setExpression("Constraints[8]", "Params.sketch9_width")
sketch9.setExpression("Constraints[9]", "Params.sketch9_height")
pocket7 = body.newObject("PartDesign::Pocket", "Pocket006")
pocket7.Profile = sketch9
pocket7.Type = "ThroughAll"
pocket7.Midplane = True

sketch10 = body.newObject("Sketcher::SketchObject", "Sketch009")
sketch10.AttachmentSupport = (doc.getObject("YZ_Plane"), [""])
sketch10.MapMode = "FlatFace"
sketch10.addGeometry([
    Part.LineSegment(Vector(-3.81, 3.13, 0), Vector(-4.37, 3.45, 0)),
    Part.LineSegment(Vector(-4.37, 3.45, 0), Vector(-4.57, 3.45, 0)),
    Part.LineSegment(Vector(-4.57, 3.45, 0), Vector(-4.57, -3.45, 0)),
    Part.LineSegment(Vector(-4.57, -3.45, 0), Vector(-4.37, -3.45, 0)),
    Part.LineSegment(Vector(-4.37, -3.45, 0), Vector(-3.81, -3.13, 0)),
    Part.LineSegment(Vector(-3.81, -3.13, 0), Vector(-3.81, 3.13, 0)),
], False)
sketch10.addConstraint([
    Sketcher.Constraint("Coincident", 0, 2, 1, 1),
    Sketcher.Constraint("Coincident", 1, 2, 2, 1),
    Sketcher.Constraint("Coincident", 2, 2, 3, 1),
    Sketcher.Constraint("Coincident", 3, 2, 4, 1),
    Sketcher.Constraint("Coincident", 4, 2, 5, 1),
    Sketcher.Constraint("Coincident", 5, 2, 0, 1),
    Sketcher.Constraint("Horizontal", 1),
    Sketcher.Constraint("Vertical", 2),
    Sketcher.Constraint("Horizontal", 3),
    Sketcher.Constraint("Vertical", 5),
    Sketcher.Constraint("Symmetric", 0, 2, 3, 2, -1),
    Sketcher.Constraint("Equal", 0, 4),
    Sketcher.Constraint("DistanceX", 1, 2, 1, 1, Q("0.008 in")),
    Sketcher.Constraint("DistanceY", 2, 2, 2, 1, Q("0.272 in")),
    Sketcher.Constraint("DistanceX", 1, 2, -1, 1, Q("0.18 in")),
    Sketcher.Constraint("DistanceX", 4, 2, -1, 1, Q("0.15 in")),
    Sketcher.Constraint("DistanceY", 5, 1, 5, 2, Q("0.2466 in")),
])
sketch10.setExpression("Constraints[12]", "Params.sketch10_width")
sketch10.setExpression("Constraints[13]", "Params.sketch10_height")
pad2 = body.newObject("PartDesign::Pad", "Pad001")
pad2.Profile = sketch10
pad2.Type = "TwoLengths"
pad2.setExpression("Length", "Params.pad2_length")
pad2.setExpression("Length2", "Params.pad2_length2")
pad2.Reversed = True

doc.recompute()
